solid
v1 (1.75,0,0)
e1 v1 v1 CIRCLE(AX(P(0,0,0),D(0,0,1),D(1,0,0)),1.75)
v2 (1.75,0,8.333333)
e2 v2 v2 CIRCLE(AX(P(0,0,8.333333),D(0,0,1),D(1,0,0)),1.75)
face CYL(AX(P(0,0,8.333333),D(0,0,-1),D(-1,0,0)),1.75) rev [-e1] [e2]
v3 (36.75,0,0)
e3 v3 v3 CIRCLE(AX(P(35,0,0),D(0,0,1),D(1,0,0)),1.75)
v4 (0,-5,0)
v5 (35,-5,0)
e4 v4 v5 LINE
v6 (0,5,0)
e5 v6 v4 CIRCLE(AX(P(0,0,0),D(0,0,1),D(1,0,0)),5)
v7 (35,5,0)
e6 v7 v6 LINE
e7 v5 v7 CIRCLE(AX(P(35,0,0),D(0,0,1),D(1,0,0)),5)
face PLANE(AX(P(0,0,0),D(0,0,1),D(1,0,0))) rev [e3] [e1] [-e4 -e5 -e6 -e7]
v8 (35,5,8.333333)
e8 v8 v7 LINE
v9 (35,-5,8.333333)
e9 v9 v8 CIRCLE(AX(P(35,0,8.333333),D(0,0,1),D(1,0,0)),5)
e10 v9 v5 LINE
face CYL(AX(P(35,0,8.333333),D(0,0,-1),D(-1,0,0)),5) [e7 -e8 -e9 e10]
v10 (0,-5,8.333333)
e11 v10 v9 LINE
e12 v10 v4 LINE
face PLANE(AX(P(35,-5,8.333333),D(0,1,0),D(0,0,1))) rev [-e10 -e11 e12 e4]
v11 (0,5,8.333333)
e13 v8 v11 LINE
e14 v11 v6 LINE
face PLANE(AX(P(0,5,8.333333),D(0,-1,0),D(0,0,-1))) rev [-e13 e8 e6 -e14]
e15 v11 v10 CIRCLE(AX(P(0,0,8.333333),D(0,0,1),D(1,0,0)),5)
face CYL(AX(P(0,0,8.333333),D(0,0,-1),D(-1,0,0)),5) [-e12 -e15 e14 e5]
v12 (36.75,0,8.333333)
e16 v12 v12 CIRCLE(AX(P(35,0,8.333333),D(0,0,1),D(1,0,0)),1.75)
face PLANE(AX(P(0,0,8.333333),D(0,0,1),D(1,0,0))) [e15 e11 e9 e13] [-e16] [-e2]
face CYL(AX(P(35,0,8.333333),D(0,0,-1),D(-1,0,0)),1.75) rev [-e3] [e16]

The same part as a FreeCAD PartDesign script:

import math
import FreeCAD as App
import Part
import Sketcher
from FreeCAD import Vector
Q = App.Units.Quantity

doc = App.newDocument("Part")
body = doc.addObject("PartDesign::Body", "Body")

sketch1 = doc.addObject("Sketcher::SketchObject", "Sketch")
body.addObject(sketch1)
sketch1.AttachmentSupport = (doc.XY_Plane, [""])
sketch1.MapMode = "FlatFace"
sketch1.addGeometry([
    Part.LineSegment(Vector(35, 5, 0), Vector(0, 5, 0)),
    Part.ArcOfCircle(Part.Circle(Vector(0, 0, 0), Vector(0, 0, 1), 5), math.radians(90), math.radians(270)),
    Part.LineSegment(Vector(0, -5, 0), Vector(35, -5, 0)),
    Part.ArcOfCircle(Part.Circle(Vector(35, 0, 0), Vector(0, 0, 1), 5), math.radians(-90), math.radians(90)),
    Part.Circle(Vector(35, 0, 0), Vector(0, 0, 1), 1.8),
    Part.Circle(Vector(0, 0, 0), Vector(0, 0, 1), 1.8),
], False)
sketch1.addConstraint([
    Sketcher.Constraint("Tangent", 0, 2, 1, 1),
    Sketcher.Constraint("Tangent", 1, 2, 2, 1),
    Sketcher.Constraint("Tangent", 2, 2, 3, 1),
    Sketcher.Constraint("Tangent", 3, 2, 0, 1),
    Sketcher.Constraint("Horizontal", 0),
    Sketcher.Constraint("Horizontal", 2),
    Sketcher.Constraint("Coincident", 1, 3, -1, 1),
    Sketcher.Constraint("Coincident", 5, 3, -1, 1),
    Sketcher.Constraint("Coincident", 4, 3, 3, 3),
    Sketcher.Constraint("Equal", 4, 5),
    Sketcher.Constraint("Radius", 1, Q("5 mm")),
    Sketcher.Constraint("Diameter", 4, Q("3.5 mm")),
    Sketcher.Constraint("DistanceX", 0, 2, 0, 1, Q("35 mm")),
])
pad1 = doc.addObject("PartDesign::Pad", "Pad")
body.addObject(pad1)
pad1.Profile = sketch1
pad1.Length = 8.333333

doc.recompute()
